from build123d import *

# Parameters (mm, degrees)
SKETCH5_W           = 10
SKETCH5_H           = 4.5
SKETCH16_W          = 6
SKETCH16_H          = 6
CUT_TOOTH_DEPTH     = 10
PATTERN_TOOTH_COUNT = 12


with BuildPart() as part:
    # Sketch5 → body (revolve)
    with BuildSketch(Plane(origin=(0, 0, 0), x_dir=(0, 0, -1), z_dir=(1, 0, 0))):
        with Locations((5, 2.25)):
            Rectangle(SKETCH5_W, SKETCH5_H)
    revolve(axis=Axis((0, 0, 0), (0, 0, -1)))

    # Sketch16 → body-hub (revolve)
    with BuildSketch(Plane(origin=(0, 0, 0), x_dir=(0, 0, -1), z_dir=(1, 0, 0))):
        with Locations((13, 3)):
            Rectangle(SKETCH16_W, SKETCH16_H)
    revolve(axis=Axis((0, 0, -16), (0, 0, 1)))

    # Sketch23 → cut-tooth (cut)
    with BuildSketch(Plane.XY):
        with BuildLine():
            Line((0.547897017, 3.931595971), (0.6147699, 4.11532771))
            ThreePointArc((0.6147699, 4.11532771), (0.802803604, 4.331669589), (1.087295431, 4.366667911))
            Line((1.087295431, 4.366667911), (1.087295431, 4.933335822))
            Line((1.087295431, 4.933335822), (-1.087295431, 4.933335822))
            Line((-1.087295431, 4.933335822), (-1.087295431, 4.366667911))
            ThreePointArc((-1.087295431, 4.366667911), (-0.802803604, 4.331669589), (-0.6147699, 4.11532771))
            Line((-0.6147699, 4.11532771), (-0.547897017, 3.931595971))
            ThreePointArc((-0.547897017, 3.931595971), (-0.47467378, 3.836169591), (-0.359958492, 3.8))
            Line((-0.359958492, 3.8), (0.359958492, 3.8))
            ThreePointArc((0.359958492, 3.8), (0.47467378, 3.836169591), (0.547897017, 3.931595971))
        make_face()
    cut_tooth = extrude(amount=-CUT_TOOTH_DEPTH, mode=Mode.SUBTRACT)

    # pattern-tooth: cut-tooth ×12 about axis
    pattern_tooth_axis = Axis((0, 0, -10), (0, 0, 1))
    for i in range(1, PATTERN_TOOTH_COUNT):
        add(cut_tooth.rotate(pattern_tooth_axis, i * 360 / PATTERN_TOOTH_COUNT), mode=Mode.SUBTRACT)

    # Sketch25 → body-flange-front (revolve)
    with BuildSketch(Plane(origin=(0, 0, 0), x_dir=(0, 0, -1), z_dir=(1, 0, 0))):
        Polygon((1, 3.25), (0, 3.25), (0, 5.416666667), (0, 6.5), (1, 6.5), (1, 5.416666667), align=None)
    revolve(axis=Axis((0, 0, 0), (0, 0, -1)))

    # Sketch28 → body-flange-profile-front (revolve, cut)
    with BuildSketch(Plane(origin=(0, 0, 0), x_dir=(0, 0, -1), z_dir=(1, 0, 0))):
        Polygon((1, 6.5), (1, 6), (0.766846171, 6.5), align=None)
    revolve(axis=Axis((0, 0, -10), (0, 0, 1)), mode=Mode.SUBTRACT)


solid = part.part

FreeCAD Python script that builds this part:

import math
import FreeCAD as App
import Part
import Sketcher

V = App.Vector
Q = App.Units.Quantity

doc = App.newDocument("Part")
body = doc.addObject("PartDesign::Body", "Body")

# Sketch on YZ plane
sketch1 = body.newObject("Sketcher::SketchObject", "Sketch")
sketch1.AttachmentSupport = (doc.getObject("YZ_Plane"), [""])
sketch1.MapMode = "FlatFace"
sketch1.addGeometry([
    Part.LineSegment(V(4.5, 0, 0), V(0, 0, 0)),
    Part.LineSegment(V(0, 0, 0), V(0, -10, 0)),
    Part.LineSegment(V(0, -10, 0), V(4.5, -10, 0)),
    Part.LineSegment(V(4.5, -10, 0), V(4.5, 0, 0)),
], False)
sketch1.addConstraint([
    Sketcher.Constraint("Coincident", 0, 2, 1, 1),
    Sketcher.Constraint("Coincident", 1, 2, 2, 1),
    Sketcher.Constraint("Coincident", 2, 2, 3, 1),
    Sketcher.Constraint("Coincident", 3, 2, 0, 1),
    Sketcher.Constraint("Horizontal", 0),
    Sketcher.Constraint("Vertical", 1),
    Sketcher.Constraint("Horizontal", 2),
    Sketcher.Constraint("Vertical", 3),
    Sketcher.Constraint("Coincident", 0, 2, -1, 1),
    Sketcher.Constraint("DistanceY", 1, 2, 1, 1, 10.0),
    Sketcher.Constraint("DistanceX", 0, 2, 0, 1, 4.5),
])
revolution = body.newObject("PartDesign::Revolution", "Revolution")
revolution.Profile = sketch1
revolution.ReferenceAxis = (sketch1, ["V_Axis"])
revolution.Angle = 360

# Sketch on YZ plane
sketch2 = body.newObject("Sketcher::SketchObject", "Sketch001")
sketch2.AttachmentSupport = (doc.getObject("YZ_Plane"), [""])
sketch2.MapMode = "FlatFace"
sketch2.addGeometry([
    Part.LineSegment(V(6, -10, 0), V(0, -10, 0)),
    Part.LineSegment(V(0, -10, 0), V(0, -16, 0)),
    Part.LineSegment(V(0, -16, 0), V(6, -16, 0)),
    Part.LineSegment(V(6, -16, 0), V(6, -10, 0)),
], False)
sketch2.addConstraint([
    Sketcher.Constraint("Coincident", 0, 2, 1, 1),
    Sketcher.Constraint("Coincident", 1, 2, 2, 1),
    Sketcher.Constraint("Coincident", 2, 2, 3, 1),
    Sketcher.Constraint("Coincident", 3, 2, 0, 1),
    Sketcher.Constraint("Horizontal", 0),
    Sketcher.Constraint("Vertical", 1),
    Sketcher.Constraint("Horizontal", 2),
    Sketcher.Constraint("Vertical", 3),
    Sketcher.Constraint("PointOnObject", 0, 2, -2),
    Sketcher.Constraint("Equal", 2, 1),
    Sketcher.Constraint("DistanceX", 0, 2, 0, 1, 6.0),
    Sketcher.Constraint("DistanceY", 0, 2, -1, 1, 10.0),
])
revolution2 = body.newObject("PartDesign::Revolution", "Revolution001")
revolution2.Profile = sketch2
revolution2.ReferenceAxis = (sketch2, ["V_Axis"])
revolution2.Angle = 360

# Sketch on XY plane
sketch3 = body.newObject("Sketcher::SketchObject", "Sketch002")
sketch3.AttachmentSupport = (doc.getObject("XY_Plane"), [""])
sketch3.MapMode = "FlatFace"
sketch3.addGeometry([
    Part.LineSegment(V(0.547897, 3.931596, 0), V(0.61477, 4.115328, 0)),  # 0
    Part.ArcOfCircle(Part.Circle(V(0.990647, 3.97852, 0), V(0, 0, 1), 0.4), math.radians(76.017755), math.radians(160)),  # 1
    Part.LineSegment(V(1.087295, 4.366668, 0), V(1.087295, 4.933336, 0)),  # 2
    Part.LineSegment(V(1.087295, 4.933336, 0), V(-1.087295, 4.933336, 0)),  # 3
    Part.LineSegment(V(-1.087295, 4.933336, 0), V(-1.087295, 4.366668, 0)),  # 4
    Part.ArcOfCircle(Part.Circle(V(-0.990647, 3.97852, 0), V(0, 0, 1), 0.4), math.radians(20), math.radians(103.982245)),  # 5
    Part.LineSegment(V(-0.61477, 4.115328, 0), V(-0.547897, 3.931596, 0)),  # 6
    Part.ArcOfCircle(Part.Circle(V(-0.359958, 4, 0), V(0, 0, 1), 0.2), math.radians(-160), math.radians(-90)),  # 7
    Part.LineSegment(V(-0.359958, 3.8, 0), V(0.359958, 3.8, 0)),  # 8
    Part.ArcOfCircle(Part.Circle(V(0.359958, 4, 0), V(0, 0, 1), 0.2), math.radians(-90), math.radians(-20)),  # 9
], False)
sketch3.addConstraint([
    Sketcher.Constraint("Tangent", 0, 2, 1, 2),
    Sketcher.Constraint("Coincident", 1, 1, 2, 1),
    Sketcher.Constraint("Coincident", 2, 2, 3, 1),
    Sketcher.Constraint("Coincident", 3, 2, 4, 1),
    Sketcher.Constraint("Coincident", 4, 2, 5, 2),
    Sketcher.Constraint("Tangent", 5, 1, 6, 1),
    Sketcher.Constraint("Tangent", 6, 2, 7, 1),
    Sketcher.Constraint("Tangent", 7, 2, 8, 1),
    Sketcher.Constraint("Tangent", 8, 2, 9, 1),
    Sketcher.Constraint("Tangent", 9, 2, 0, 1),
    Sketcher.Constraint("Vertical", 2),
    Sketcher.Constraint("Horizontal", 3),
    Sketcher.Constraint("Vertical", 4),
    Sketcher.Constraint("Horizontal", 8),
    Sketcher.Constraint("Equal", 1, 5),
    Sketcher.Constraint("Equal", 7, 9),
    Sketcher.Constraint("Symmetric", 1, 3, 5, 3, -2),
    Sketcher.Constraint("Horizontal", 1, 1, 4, 2),
    Sketcher.Constraint("Horizontal", 0, 2, 5, 1),
    Sketcher.Constraint("Radius", 1, 0.4),
    Sketcher.Constraint("Radius", 7, 0.2),
    Sketcher.Constraint("Angle", 0, Q("70 deg")),
    Sketcher.Constraint("DistanceY", -1, 1, 7, 3, 4.0),
    Sketcher.Constraint("DistanceX", 3, 2, 3, 1, 2.174591),
    Sketcher.Constraint("DistanceX", 4, 2, 6, 2, 0.539398),
    Sketcher.Constraint("DistanceY", 2, 1, 2, 2, 0.566668),
    Sketcher.Constraint("DistanceY", -1, 1, 1, 3, 3.97852),
])
pocket1 = body.newObject("PartDesign::Pocket", "Pocket")
pocket1.Profile = sketch3
pocket1.Length = 10
doc.recompute()

polarpattern = body.newObject("PartDesign::PolarPattern", "PolarPattern")
polarpattern.Originals = [pocket1]
polarpattern.Axis = (doc.getObject("Z_Axis"), [""])
polarpattern.Angle = 360
polarpattern.Occurrences = 12
body.Tip = polarpattern

# Sketch on YZ plane
sketch4 = body.newObject("Sketcher::SketchObject", "Sketch003")
sketch4.AttachmentSupport = (doc.getObject("YZ_Plane"), [""])
sketch4.MapMode = "FlatFace"
sketch4.addGeometry([
    Part.LineSegment(V(3.25, 0, 0), V(3.25, -1, 0)),
    Part.LineSegment(V(3.25, -1, 0), V(6.5, -1, 0)),
    Part.LineSegment(V(6.5, -1, 0), V(6.5, 0, 0)),
    Part.LineSegment(V(6.5, 0, 0), V(3.25, 0, 0)),
], False)
sketch4.addConstraint([
    Sketcher.Constraint("Coincident", 0, 2, 1, 1),
    Sketcher.Constraint("Coincident", 1, 2, 2, 1),
    Sketcher.Constraint("Coincident", 2, 2, 3, 1),
    Sketcher.Constraint("Coincident", 3, 2, 0, 1),
    Sketcher.Constraint("Vertical", 0),
    Sketcher.Constraint("Horizontal", 1),
    Sketcher.Constraint("Vertical", 2),
    Sketcher.Constraint("Horizontal", 3),
    Sketcher.Constraint("PointOnObject", 2, 2, -1),
    Sketcher.Constraint("DistanceY", 0, 2, 0, 1, 1.0),
    Sketcher.Constraint("DistanceX", 1, 1, 1, 2, 3.25),
    Sketcher.Constraint("DistanceX", -1, 1, 1, 2, 6.5),
])
revolution3 = body.newObject("PartDesign::Revolution", "Revolution002")
revolution3.Profile = sketch4
revolution3.ReferenceAxis = (sketch4, ["V_Axis"])
revolution3.Angle = 360

# Sketch on YZ plane
sketch5 = body.newObject("Sketcher::SketchObject", "Sketch004")
sketch5.AttachmentSupport = (doc.getObject("YZ_Plane"), [""])
sketch5.MapMode = "FlatFace"
sketch5.addGeometry([
    Part.LineSegment(V(6, -1, 0), V(6.5, -1, 0)),
    Part.LineSegment(V(6.5, -1, 0), V(6.5, -0.766846, 0)),
    Part.LineSegment(V(6.5, -0.766846, 0), V(6, -1, 0)),
], False)
sketch5.addConstraint([
    Sketcher.Constraint("Coincident", 0, 2, 1, 1),
    Sketcher.Constraint("Coincident", 1, 2, 2, 1),
    Sketcher.Constraint("Coincident", 2, 2, 0, 1),
    Sketcher.Constraint("Horizontal", 0),
    Sketcher.Constraint("Vertical", 1),
    Sketcher.Constraint("Angle", 2, Q("-155 deg")),
    Sketcher.Constraint("DistanceX", 0, 1, 0, 2, 0.5),
    Sketcher.Constraint("DistanceY", 0, 2, -1, 1, 1.0),
    Sketcher.Constraint("DistanceX", -1, 1, 2, 2, 6.0),
])
groove = body.newObject("PartDesign::Groove", "Groove")
groove.Profile = sketch5
groove.ReferenceAxis = (sketch5, ["V_Axis"])
groove.Angle = 360

doc.recompute()
